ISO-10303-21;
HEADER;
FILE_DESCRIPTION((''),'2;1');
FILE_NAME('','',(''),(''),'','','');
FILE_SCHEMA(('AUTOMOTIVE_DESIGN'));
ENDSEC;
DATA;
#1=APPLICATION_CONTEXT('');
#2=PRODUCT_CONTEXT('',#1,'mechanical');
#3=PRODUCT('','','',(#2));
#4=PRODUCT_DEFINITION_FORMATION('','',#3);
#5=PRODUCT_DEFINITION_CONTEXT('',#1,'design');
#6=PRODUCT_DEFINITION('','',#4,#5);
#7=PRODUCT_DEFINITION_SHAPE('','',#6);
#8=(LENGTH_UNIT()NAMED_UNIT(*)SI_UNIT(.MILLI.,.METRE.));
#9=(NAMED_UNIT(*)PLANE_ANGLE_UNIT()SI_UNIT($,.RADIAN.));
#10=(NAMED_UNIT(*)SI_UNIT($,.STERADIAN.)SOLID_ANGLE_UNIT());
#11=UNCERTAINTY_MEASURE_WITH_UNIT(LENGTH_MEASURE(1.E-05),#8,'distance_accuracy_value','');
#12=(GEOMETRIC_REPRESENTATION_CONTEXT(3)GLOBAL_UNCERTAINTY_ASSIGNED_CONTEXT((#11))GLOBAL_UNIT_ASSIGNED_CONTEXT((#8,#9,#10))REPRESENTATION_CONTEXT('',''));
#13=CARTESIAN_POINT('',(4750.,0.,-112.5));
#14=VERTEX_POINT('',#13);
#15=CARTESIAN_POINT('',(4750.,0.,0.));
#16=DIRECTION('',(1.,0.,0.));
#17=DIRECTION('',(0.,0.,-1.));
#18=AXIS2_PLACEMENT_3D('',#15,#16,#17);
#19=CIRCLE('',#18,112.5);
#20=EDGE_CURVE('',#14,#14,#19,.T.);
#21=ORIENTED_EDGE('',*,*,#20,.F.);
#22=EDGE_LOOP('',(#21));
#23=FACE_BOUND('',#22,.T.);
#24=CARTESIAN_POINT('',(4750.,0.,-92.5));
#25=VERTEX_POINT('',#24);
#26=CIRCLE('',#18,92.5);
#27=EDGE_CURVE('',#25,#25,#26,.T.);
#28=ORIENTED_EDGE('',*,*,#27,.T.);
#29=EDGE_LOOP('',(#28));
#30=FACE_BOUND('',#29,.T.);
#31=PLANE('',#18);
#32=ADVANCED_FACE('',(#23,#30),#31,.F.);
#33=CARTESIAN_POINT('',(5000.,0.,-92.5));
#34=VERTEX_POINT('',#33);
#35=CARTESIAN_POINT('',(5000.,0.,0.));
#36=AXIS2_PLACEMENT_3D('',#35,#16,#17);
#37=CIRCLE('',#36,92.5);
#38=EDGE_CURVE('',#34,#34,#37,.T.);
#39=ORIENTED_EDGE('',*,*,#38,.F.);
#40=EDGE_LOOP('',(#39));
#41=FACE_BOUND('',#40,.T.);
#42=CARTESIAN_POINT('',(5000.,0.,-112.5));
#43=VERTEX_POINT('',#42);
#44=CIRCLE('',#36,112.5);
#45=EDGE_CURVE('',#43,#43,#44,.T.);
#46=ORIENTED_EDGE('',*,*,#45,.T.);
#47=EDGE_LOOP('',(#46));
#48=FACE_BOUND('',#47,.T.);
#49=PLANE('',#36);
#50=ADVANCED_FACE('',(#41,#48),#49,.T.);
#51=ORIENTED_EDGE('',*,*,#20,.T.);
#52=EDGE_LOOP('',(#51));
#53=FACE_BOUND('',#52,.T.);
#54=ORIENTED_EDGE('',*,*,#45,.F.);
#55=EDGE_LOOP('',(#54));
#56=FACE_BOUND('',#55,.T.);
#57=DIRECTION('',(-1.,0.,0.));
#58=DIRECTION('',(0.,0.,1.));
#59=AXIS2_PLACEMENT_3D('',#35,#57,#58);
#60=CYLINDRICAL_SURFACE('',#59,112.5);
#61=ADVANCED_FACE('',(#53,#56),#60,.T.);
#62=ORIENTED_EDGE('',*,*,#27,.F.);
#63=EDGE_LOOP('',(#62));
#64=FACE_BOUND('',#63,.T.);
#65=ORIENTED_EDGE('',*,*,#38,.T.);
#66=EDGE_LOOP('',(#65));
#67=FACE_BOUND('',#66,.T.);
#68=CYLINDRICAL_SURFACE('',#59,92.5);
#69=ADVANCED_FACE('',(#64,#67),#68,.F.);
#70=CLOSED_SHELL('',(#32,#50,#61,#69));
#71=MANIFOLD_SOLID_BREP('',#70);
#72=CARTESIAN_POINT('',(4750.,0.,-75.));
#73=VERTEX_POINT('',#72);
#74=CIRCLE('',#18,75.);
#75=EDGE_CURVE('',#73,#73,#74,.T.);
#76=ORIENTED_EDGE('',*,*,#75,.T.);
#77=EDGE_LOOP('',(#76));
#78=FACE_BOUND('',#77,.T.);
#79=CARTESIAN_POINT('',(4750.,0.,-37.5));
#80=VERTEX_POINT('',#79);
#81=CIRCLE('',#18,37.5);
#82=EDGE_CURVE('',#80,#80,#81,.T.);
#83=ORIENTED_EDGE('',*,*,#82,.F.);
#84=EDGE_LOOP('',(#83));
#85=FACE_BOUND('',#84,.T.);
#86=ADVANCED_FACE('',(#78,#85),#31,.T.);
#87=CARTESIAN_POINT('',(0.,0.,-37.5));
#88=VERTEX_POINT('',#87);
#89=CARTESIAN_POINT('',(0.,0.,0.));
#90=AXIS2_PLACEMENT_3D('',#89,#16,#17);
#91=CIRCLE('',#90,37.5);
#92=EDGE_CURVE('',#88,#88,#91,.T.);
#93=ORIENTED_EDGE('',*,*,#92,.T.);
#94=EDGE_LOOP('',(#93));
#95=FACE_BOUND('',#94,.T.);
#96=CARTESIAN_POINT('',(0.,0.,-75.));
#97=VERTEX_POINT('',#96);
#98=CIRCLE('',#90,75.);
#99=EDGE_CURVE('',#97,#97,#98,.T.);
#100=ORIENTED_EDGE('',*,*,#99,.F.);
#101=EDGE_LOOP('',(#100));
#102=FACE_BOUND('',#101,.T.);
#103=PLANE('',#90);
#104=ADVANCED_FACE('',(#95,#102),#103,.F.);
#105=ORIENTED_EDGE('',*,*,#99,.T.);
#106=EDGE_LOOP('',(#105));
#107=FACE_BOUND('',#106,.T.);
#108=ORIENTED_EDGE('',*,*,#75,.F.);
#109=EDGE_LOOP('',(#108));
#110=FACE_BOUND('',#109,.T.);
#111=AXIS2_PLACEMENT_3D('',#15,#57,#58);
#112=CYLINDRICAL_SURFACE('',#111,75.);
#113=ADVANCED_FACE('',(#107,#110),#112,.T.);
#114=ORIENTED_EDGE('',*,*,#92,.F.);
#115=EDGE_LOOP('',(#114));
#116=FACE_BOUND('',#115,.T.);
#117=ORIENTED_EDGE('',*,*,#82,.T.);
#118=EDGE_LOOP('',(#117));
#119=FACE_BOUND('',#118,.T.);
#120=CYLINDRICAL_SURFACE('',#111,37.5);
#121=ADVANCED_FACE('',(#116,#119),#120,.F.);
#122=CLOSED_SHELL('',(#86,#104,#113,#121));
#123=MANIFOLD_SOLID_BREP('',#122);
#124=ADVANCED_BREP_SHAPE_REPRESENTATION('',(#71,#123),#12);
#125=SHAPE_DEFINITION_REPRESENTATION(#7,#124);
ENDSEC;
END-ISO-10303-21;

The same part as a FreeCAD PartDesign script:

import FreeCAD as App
import Part
import Sketcher
from FreeCAD import Vector
Q = App.Units.Quantity

doc = App.newDocument("Part")
body = doc.addObject("PartDesign::Body", "Body")

# Sketch on YZ plane
sketch1 = body.newObject("Sketcher::SketchObject", "Sketch")
sketch1.AttachmentSupport = (doc.getObject("YZ_Plane"), [""])
sketch1.MapMode = "FlatFace"
sketch1.addGeometry([
    Part.Circle(Vector(0, 0, 0), Vector(0, 0, 1), 75),
    Part.Circle(Vector(0, 0, 0), Vector(0, 0, 1), 38),
], False)
sketch1.addConstraint([
    Sketcher.Constraint("Coincident", 0, 3, -1, 1),
    Sketcher.Constraint("Coincident", 1, 3, -1, 1),
    Sketcher.Constraint("Diameter", 0, Q("150 mm")),
    Sketcher.Constraint("Diameter", 1, Q("75 mm")),
])
pad1 = body.newObject("PartDesign::Pad", "Pad")
pad1.Profile = sketch1
pad1.Length = 4750
body2 = doc.addObject("PartDesign::Body", "Body001")

# Sketch on YZ plane
sketch2 = body2.newObject("Sketcher::SketchObject", "Sketch001")
sketch2.AttachmentSupport = (doc.getObject("YZ_Plane001"), [""])
sketch2.MapMode = "FlatFace"
sketch2.AttachmentOffset = App.Placement(Vector(0, 0, 4750), App.Rotation())
sketch2.addGeometry([
    Part.Circle(Vector(0, 0, 0), Vector(0, 0, 1), 112),
    Part.Circle(Vector(0, 0, 0), Vector(0, 0, 1), 92),
], False)
sketch2.addConstraint([
    Sketcher.Constraint("Coincident", 0, 3, -1, 1),
    Sketcher.Constraint("Coincident", 1, 3, -1, 1),
    Sketcher.Constraint("Diameter", 0, Q("225 mm")),
    Sketcher.Constraint("Diameter", 1, Q("185 mm")),
])
pad2 = body2.newObject("PartDesign::Pad", "Pad001")
pad2.Profile = sketch2
pad2.Length = 250

doc.recompute()
